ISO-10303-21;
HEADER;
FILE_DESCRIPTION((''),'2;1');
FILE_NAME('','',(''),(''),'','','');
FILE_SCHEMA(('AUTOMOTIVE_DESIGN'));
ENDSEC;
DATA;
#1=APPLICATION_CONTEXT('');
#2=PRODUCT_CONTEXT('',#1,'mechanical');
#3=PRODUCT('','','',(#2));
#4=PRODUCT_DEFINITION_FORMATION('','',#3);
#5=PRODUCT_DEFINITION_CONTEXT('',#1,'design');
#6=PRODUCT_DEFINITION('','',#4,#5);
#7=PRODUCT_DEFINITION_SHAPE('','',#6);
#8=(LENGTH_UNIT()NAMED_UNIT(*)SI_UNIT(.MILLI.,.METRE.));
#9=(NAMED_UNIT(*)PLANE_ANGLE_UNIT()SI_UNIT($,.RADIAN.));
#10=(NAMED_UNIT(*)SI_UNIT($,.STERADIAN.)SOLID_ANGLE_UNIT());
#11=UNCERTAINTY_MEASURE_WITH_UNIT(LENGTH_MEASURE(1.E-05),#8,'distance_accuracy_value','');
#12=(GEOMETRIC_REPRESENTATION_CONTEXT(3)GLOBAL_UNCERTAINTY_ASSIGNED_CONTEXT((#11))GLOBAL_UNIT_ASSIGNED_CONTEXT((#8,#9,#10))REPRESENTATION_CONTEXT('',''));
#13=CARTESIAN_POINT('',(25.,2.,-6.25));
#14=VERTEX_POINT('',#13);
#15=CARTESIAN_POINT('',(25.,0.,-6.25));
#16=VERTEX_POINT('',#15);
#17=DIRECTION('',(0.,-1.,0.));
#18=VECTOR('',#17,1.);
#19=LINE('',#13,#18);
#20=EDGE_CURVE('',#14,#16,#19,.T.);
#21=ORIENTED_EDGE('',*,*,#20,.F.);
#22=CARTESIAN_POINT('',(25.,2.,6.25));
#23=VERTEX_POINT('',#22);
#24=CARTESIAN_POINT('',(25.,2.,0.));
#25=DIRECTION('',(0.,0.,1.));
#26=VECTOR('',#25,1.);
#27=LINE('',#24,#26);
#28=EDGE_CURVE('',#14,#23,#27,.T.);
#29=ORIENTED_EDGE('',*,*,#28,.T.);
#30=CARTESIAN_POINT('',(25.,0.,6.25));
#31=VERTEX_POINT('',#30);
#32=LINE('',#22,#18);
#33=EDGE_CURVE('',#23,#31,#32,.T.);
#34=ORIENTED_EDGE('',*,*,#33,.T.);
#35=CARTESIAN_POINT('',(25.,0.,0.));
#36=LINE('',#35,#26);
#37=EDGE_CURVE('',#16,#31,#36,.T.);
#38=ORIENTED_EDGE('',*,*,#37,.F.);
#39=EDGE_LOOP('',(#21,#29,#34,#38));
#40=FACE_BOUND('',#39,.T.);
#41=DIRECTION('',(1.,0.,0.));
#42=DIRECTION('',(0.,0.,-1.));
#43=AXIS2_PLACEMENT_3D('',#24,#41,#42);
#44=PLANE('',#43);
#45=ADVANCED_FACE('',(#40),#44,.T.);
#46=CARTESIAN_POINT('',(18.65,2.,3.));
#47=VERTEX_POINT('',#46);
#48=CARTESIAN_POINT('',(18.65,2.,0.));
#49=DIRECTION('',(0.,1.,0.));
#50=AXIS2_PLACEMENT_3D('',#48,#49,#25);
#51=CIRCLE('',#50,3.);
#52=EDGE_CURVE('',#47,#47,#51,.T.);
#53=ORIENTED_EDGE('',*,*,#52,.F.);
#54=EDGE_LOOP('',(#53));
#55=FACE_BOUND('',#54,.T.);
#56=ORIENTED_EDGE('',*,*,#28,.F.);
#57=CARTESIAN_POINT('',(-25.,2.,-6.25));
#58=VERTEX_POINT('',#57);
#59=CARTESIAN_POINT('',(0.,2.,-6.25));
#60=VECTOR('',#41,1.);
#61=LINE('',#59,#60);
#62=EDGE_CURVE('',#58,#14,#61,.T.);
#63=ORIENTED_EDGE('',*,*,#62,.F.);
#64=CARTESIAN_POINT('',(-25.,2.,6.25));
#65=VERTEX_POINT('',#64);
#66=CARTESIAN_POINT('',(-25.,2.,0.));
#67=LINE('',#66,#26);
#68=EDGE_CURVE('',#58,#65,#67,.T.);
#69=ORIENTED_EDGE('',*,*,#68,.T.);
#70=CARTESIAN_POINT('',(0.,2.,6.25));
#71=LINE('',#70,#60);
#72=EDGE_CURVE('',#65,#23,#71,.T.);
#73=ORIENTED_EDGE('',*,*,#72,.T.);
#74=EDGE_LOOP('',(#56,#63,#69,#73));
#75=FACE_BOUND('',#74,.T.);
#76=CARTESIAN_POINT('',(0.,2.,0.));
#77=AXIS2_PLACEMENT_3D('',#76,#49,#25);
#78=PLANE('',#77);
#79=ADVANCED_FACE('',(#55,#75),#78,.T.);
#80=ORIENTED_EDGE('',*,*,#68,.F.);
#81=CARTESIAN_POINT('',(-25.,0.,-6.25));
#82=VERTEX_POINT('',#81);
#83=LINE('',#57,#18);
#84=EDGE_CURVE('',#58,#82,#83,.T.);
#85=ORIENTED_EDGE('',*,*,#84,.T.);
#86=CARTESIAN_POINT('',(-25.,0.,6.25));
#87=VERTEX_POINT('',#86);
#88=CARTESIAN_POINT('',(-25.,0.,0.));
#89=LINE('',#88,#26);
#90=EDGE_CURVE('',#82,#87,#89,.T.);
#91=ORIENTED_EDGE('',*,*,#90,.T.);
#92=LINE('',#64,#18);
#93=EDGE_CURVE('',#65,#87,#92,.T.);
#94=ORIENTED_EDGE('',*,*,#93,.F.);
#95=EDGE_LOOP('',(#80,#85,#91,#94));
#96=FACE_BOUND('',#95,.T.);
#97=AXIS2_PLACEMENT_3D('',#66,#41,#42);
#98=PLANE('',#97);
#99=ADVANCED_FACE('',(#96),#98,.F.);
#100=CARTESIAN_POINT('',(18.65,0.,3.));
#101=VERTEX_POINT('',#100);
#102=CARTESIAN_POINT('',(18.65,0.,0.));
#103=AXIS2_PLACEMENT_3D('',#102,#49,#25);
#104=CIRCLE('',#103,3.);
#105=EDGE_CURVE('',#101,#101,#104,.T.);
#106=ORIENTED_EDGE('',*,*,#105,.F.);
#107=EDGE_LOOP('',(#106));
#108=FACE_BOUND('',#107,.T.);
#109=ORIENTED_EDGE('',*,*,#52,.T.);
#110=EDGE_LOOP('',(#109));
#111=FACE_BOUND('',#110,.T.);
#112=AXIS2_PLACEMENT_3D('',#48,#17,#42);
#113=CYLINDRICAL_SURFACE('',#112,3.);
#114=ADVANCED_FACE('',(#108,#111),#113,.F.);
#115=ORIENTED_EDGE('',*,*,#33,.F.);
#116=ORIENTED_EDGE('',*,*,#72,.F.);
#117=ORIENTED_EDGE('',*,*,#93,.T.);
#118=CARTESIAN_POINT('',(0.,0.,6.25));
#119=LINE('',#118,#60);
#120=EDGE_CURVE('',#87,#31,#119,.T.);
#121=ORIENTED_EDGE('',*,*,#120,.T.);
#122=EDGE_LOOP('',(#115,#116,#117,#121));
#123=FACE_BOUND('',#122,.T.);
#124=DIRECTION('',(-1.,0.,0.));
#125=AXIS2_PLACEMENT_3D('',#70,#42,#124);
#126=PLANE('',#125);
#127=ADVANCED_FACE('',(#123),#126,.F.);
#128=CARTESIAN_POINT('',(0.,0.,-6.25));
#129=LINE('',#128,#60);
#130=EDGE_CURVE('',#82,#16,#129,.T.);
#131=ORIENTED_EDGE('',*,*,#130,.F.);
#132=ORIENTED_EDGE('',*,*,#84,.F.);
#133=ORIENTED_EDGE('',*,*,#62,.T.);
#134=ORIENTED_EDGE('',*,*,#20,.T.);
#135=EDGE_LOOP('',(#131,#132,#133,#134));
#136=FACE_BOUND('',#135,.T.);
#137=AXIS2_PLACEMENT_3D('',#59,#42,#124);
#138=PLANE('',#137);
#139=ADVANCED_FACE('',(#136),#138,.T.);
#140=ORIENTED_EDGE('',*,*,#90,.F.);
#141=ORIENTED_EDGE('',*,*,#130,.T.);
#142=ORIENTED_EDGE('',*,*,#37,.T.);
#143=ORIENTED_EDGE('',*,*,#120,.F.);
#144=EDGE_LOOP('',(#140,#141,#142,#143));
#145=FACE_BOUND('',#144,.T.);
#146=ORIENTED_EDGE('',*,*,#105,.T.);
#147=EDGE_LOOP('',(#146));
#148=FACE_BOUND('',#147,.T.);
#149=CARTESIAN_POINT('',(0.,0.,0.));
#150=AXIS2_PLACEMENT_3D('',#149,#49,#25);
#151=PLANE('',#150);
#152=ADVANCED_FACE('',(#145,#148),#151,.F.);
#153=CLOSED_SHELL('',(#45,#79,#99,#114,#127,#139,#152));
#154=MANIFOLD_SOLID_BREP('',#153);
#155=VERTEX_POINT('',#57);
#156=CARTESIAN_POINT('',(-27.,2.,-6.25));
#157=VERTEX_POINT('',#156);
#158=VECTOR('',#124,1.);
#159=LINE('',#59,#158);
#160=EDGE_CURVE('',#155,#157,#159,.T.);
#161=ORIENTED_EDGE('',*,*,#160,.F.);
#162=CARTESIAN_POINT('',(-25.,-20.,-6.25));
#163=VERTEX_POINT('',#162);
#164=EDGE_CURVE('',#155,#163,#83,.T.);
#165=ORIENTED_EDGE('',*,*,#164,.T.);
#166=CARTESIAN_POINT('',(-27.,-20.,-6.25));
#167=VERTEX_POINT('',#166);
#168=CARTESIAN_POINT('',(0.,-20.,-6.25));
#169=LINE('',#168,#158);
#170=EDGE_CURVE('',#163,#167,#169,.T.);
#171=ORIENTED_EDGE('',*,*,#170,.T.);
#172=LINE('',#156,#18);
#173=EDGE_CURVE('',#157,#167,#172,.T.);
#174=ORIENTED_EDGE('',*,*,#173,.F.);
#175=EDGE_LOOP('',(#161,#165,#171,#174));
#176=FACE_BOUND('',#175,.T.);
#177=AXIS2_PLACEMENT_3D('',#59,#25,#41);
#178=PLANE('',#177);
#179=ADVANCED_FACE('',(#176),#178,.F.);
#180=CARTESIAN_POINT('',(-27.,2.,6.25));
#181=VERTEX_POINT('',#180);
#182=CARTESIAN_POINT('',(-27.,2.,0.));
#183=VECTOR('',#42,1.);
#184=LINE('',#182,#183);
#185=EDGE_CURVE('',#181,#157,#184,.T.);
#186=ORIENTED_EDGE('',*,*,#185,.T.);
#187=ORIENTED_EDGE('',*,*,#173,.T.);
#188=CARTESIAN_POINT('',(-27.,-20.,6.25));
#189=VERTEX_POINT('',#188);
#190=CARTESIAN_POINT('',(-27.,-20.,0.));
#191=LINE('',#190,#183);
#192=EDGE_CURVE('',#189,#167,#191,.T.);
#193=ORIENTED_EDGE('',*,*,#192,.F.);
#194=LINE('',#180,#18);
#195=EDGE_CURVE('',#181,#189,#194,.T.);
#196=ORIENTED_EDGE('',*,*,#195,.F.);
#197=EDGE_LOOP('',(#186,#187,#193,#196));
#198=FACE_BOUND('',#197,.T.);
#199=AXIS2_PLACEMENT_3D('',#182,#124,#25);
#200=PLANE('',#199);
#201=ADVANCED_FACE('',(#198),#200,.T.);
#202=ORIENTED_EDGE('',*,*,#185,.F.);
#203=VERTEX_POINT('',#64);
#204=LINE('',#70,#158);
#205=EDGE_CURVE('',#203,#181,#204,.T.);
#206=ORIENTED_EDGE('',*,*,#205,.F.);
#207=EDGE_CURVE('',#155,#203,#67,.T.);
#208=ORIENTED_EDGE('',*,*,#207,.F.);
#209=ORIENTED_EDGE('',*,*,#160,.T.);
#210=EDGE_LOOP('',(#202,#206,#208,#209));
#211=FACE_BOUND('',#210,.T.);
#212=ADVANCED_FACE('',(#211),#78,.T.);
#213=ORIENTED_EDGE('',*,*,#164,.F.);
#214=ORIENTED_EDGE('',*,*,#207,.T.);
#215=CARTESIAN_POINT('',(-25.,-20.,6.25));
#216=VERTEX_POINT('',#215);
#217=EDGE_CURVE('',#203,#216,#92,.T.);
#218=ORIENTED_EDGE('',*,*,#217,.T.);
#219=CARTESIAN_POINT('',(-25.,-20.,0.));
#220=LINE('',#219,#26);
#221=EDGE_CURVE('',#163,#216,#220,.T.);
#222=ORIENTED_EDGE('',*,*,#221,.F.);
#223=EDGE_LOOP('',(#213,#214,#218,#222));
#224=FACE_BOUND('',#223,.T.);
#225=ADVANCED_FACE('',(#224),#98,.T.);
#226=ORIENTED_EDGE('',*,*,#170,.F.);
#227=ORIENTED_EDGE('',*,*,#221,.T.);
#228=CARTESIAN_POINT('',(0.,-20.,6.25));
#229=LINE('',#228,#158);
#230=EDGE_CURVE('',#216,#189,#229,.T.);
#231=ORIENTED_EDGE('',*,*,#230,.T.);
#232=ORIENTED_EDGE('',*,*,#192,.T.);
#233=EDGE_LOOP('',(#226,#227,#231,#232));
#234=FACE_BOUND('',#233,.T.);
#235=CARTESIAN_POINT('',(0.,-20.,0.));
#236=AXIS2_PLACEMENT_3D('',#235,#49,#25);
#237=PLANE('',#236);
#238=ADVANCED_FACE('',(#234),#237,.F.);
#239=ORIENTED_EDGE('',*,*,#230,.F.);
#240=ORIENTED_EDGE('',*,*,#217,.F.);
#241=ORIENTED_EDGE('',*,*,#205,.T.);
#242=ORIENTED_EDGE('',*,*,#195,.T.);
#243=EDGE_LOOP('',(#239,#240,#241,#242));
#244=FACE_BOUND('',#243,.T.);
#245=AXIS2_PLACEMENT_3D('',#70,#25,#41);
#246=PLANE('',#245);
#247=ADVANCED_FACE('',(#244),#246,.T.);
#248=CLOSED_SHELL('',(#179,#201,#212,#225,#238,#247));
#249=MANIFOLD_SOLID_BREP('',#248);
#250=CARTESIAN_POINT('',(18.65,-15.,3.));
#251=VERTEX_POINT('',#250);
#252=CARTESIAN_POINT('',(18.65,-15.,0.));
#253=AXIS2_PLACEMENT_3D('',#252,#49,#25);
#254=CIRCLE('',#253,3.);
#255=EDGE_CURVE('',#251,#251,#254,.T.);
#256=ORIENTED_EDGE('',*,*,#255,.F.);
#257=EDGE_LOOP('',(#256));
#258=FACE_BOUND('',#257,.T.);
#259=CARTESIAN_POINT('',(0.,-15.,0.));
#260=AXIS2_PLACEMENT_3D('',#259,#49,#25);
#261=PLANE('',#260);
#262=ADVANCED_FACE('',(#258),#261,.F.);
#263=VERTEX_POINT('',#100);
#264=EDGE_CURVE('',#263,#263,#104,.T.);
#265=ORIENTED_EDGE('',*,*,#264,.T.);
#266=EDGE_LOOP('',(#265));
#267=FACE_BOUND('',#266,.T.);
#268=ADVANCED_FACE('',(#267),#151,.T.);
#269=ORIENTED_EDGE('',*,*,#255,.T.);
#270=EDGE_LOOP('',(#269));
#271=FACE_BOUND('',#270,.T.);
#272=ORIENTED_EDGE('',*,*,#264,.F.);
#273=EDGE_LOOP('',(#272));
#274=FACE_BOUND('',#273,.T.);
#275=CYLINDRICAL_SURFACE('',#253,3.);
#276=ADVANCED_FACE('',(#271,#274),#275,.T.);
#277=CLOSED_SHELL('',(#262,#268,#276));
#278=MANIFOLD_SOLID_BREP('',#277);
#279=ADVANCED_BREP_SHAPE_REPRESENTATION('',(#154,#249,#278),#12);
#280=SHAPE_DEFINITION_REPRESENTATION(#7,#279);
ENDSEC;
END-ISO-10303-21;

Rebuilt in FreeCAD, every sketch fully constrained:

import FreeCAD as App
import Part
import Sketcher
from FreeCAD import Vector
Q = App.Units.Quantity

doc = App.newDocument("Part")
body = doc.addObject("PartDesign::Body", "Body")

# Sketch on XZ plane
sketch1 = body.newObject("Sketcher::SketchObject", "Sketch")
sketch1.AttachmentSupport = (doc.getObject("XZ_Plane"), [""])
sketch1.MapMode = "FlatFace"
sketch1.addGeometry(Part.LineSegment(Vector(-27, -6.25, 0), Vector(-27, 6.25, 0)), False)
sketch1.addGeometry(Part.LineSegment(Vector(-27, 6.25, 0), Vector(-25, 6.25, 0)), False)
sketch1.addGeometry(Part.LineSegment(Vector(-25, 6.25, 0), Vector(-25, -6.25, 0)), False)
sketch1.addGeometry(Part.LineSegment(Vector(-25, -6.25, 0), Vector(-27, -6.25, 0)), False)
sketch1.addConstraint(Sketcher.Constraint("Coincident", 0, 2, 1, 1))
sketch1.addConstraint(Sketcher.Constraint("Coincident", 1, 2, 2, 1))
sketch1.addConstraint(Sketcher.Constraint("Coincident", 2, 2, 3, 1))
sketch1.addConstraint(Sketcher.Constraint("Coincident", 3, 2, 0, 1))
sketch1.addConstraint(Sketcher.Constraint("Vertical", 0))
sketch1.addConstraint(Sketcher.Constraint("Horizontal", 1))
sketch1.addConstraint(Sketcher.Constraint("Vertical", 2))
sketch1.addConstraint(Sketcher.Constraint("Horizontal", 3))
sketch1.addConstraint(Sketcher.Constraint("DistanceX", 1, 1, 1, 2, Q("2 mm")))
sketch1.addConstraint(Sketcher.Constraint("DistanceY", 0, 1, 0, 2, Q("12.5 mm")))
sketch1.addConstraint(Sketcher.Constraint("DistanceX", 0, 2, -1, 1, Q("27 mm")))
sketch1.addConstraint(Sketcher.Constraint("DistanceY", -1, 1, 0, 2, Q("6.25 mm")))
pad1 = body.newObject("PartDesign::Pad", "Pad")
pad1.Profile = sketch1
pad1.Type = "TwoLengths"
pad1.Length = 2
pad1.Length2 = 20
pad1.Reversed = True
body2 = doc.addObject("PartDesign::Body", "Body001")

# Sketch on XZ plane
sketch2 = body2.newObject("Sketcher::SketchObject", "Sketch001")
sketch2.AttachmentSupport = (doc.getObject("XZ_Plane001"), [""])
sketch2.MapMode = "FlatFace"
sketch2.addGeometry(Part.LineSegment(Vector(-25, -6.25, 0), Vector(-25, 6.25, 0)), False)
sketch2.addGeometry(Part.LineSegment(Vector(-25, 6.25, 0), Vector(25, 6.25, 0)), False)
sketch2.addGeometry(Part.LineSegment(Vector(25, 6.25, 0), Vector(25, -6.25, 0)), False)
sketch2.addGeometry(Part.LineSegment(Vector(25, -6.25, 0), Vector(-25, -6.25, 0)), False)
sketch2.addGeometry(Part.Circle(Vector(18.65, 0, 0), Vector(0, 0, 1), 3), False)
sketch2.addConstraint(Sketcher.Constraint("Coincident", 0, 2, 1, 1))
sketch2.addConstraint(Sketcher.Constraint("Coincident", 1, 2, 2, 1))
sketch2.addConstraint(Sketcher.Constraint("Coincident", 2, 2, 3, 1))
sketch2.addConstraint(Sketcher.Constraint("Coincident", 3, 2, 0, 1))
sketch2.addConstraint(Sketcher.Constraint("Vertical", 0))
sketch2.addConstraint(Sketcher.Constraint("Horizontal", 1))
sketch2.addConstraint(Sketcher.Constraint("Vertical", 2))
sketch2.addConstraint(Sketcher.Constraint("Horizontal", 3))
sketch2.addConstraint(Sketcher.Constraint("Symmetric", 0, 2, 2, 2, -1, 1))
sketch2.addConstraint(Sketcher.Constraint("PointOnObject", 4, 3, -1))
sketch2.addConstraint(Sketcher.Constraint("Diameter", 4, Q("6 mm")))
sketch2.addConstraint(Sketcher.Constraint("DistanceX", 1, 1, 1, 2, Q("50 mm")))
sketch2.addConstraint(Sketcher.Constraint("DistanceY", 0, 1, 0, 2, Q("12.5 mm")))
sketch2.addConstraint(Sketcher.Constraint("DistanceX", -1, 1, 4, 3, Q("18.65 mm")))
pad2 = body2.newObject("PartDesign::Pad", "Pad001")
pad2.Profile = sketch2
pad2.Length = 2
pad2.Reversed = True
body3 = doc.addObject("PartDesign::Body", "Body002")

# Sketch on XZ plane
sketch3 = body3.newObject("Sketcher::SketchObject", "Sketch002")
sketch3.AttachmentSupport = (doc.getObject("XZ_Plane002"), [""])
sketch3.MapMode = "FlatFace"
sketch3.addGeometry(Part.Circle(Vector(18.65, 0, 0), Vector(0, 0, 1), 3), False)
sketch3.addConstraint(Sketcher.Constraint("PointOnObject", 0, 3, -1))
sketch3.addConstraint(Sketcher.Constraint("Diameter", 0, Q("6 mm")))
sketch3.addConstraint(Sketcher.Constraint("DistanceX", -1, 1, 0, 3, Q("18.65 mm")))
pad3 = body3.newObject("PartDesign::Pad", "Pad002")
pad3.Profile = sketch3
pad3.Length = 15

doc.recompute()
